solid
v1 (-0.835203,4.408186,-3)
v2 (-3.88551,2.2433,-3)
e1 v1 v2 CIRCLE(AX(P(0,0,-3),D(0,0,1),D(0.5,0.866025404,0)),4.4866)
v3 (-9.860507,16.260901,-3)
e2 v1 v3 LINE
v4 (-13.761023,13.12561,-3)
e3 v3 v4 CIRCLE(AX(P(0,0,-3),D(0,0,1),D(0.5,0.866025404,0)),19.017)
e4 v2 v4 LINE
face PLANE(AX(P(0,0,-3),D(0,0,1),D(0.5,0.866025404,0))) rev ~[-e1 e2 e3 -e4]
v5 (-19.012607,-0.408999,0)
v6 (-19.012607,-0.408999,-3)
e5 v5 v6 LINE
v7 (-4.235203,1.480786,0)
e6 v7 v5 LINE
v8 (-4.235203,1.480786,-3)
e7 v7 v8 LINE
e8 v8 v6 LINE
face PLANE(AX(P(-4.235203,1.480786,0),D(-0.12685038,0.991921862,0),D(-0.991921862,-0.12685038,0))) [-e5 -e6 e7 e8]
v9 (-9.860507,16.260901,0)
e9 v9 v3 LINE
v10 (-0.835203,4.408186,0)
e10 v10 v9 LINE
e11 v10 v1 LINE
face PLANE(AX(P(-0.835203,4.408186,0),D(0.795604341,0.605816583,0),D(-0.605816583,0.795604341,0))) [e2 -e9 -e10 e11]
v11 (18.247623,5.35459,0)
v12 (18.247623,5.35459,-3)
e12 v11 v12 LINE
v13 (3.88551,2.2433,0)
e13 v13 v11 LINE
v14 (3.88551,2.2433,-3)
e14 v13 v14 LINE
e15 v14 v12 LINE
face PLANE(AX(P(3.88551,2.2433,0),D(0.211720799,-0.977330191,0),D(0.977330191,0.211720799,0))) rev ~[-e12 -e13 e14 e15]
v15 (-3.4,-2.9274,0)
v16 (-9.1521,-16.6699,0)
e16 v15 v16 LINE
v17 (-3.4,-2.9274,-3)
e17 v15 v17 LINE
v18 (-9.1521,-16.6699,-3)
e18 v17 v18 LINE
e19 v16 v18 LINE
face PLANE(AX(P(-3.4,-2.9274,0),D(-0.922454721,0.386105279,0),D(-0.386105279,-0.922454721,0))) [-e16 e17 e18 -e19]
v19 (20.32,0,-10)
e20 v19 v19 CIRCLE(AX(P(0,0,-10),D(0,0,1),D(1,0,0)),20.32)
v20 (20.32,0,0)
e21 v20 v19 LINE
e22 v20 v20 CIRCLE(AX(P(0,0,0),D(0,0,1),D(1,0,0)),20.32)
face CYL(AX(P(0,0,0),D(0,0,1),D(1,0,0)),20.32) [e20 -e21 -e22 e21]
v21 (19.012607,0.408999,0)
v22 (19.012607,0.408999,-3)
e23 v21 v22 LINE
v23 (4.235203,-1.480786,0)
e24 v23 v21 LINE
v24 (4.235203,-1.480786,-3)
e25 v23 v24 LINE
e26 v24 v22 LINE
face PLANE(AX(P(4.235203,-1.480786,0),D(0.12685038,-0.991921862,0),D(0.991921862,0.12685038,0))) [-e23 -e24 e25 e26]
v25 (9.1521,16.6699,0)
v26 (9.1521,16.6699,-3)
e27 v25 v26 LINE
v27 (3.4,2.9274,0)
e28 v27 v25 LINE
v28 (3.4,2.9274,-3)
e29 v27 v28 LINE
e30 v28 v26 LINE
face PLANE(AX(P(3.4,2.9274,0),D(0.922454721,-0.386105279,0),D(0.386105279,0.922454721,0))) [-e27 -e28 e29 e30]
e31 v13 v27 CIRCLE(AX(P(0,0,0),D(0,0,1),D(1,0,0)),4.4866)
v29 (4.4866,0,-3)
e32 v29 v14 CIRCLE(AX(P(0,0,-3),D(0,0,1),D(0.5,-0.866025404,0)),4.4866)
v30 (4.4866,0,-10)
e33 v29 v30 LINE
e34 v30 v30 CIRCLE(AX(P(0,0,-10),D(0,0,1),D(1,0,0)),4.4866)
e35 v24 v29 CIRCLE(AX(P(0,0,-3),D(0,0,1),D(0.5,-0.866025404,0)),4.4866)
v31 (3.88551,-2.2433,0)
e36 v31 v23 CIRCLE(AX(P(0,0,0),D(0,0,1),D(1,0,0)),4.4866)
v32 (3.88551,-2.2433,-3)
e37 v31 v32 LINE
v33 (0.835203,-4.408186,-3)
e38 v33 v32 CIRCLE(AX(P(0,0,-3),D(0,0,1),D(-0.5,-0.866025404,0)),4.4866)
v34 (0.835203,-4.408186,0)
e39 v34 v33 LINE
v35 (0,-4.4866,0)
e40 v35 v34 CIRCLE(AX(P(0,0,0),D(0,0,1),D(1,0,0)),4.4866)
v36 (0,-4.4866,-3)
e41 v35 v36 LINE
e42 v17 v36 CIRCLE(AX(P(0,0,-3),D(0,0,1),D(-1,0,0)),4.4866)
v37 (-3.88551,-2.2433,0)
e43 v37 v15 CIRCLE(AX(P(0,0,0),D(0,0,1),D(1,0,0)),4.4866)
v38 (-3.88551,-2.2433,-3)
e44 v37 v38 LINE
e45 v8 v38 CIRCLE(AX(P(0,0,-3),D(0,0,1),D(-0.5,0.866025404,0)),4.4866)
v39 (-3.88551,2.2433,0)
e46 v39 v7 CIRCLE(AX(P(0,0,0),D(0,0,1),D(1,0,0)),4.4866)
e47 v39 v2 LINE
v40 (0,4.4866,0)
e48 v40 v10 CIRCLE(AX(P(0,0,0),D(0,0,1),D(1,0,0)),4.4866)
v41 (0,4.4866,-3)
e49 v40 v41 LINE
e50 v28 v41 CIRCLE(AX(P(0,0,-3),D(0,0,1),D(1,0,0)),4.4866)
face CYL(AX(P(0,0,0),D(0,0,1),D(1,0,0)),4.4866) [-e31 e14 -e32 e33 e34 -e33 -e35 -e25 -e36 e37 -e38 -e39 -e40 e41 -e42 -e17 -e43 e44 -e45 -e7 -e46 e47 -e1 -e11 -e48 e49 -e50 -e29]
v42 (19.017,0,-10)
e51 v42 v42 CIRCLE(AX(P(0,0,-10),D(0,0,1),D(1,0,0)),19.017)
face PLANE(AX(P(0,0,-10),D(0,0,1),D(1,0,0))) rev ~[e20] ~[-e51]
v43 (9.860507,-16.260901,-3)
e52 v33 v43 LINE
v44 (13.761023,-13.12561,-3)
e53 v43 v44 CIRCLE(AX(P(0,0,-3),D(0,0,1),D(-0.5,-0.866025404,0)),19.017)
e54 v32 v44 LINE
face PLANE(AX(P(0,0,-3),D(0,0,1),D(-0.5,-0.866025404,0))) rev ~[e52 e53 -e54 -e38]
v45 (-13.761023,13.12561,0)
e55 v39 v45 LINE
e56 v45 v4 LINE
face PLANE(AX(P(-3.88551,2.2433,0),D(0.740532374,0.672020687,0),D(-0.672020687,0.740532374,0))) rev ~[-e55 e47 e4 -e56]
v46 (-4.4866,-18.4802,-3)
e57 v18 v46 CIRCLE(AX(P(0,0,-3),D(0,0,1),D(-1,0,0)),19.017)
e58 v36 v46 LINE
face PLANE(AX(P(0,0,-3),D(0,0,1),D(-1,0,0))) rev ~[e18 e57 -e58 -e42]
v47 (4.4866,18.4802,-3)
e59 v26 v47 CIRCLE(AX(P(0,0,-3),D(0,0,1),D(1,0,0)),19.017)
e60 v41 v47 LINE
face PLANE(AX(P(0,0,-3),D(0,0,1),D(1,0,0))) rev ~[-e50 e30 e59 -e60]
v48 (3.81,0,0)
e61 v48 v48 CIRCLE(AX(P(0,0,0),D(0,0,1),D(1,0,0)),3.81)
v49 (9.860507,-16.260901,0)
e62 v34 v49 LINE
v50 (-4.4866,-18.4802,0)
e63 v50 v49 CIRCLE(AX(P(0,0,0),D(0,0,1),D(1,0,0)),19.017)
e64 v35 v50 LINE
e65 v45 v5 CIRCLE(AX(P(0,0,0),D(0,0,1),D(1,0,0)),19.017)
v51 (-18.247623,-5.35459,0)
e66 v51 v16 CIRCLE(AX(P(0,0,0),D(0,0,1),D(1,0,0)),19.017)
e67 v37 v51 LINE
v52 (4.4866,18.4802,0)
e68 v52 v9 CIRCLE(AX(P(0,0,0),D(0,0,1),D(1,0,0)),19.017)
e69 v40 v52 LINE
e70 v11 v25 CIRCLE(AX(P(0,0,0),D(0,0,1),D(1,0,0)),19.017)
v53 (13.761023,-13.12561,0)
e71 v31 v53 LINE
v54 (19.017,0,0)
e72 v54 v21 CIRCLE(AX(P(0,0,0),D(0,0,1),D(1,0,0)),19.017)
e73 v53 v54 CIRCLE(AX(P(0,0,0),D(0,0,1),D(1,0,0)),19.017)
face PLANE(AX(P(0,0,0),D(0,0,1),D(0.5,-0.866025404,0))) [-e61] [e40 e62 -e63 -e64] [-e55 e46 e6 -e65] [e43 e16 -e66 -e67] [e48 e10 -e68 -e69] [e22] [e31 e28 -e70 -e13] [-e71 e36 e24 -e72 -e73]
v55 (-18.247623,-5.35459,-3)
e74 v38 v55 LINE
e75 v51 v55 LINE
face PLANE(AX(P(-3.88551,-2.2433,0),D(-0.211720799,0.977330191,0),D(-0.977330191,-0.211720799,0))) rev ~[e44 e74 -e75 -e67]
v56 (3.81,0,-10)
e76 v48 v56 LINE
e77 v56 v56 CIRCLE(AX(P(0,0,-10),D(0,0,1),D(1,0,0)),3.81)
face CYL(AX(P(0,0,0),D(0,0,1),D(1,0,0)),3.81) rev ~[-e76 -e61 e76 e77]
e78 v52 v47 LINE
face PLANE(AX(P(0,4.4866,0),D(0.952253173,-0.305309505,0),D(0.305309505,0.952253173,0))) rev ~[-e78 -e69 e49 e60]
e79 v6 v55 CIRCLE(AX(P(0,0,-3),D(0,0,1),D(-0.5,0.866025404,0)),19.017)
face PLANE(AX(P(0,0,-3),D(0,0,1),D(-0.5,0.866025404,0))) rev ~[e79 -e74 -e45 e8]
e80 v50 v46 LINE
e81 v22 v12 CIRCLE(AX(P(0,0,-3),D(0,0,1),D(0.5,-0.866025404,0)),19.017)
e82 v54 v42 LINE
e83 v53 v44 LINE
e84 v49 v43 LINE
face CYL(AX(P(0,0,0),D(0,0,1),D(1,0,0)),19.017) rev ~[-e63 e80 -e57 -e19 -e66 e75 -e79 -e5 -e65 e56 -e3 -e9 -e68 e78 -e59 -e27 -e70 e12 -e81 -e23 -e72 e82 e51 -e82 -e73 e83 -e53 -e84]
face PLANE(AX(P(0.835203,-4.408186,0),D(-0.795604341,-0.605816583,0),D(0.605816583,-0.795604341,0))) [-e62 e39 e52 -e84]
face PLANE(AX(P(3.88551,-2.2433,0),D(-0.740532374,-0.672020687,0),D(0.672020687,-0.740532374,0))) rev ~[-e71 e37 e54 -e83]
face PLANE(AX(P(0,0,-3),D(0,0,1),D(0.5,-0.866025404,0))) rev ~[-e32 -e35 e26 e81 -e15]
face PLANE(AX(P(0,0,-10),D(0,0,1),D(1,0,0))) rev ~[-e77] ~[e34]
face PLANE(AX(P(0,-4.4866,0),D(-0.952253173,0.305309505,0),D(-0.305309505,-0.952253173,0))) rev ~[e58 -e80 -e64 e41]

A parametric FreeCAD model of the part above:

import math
import FreeCAD as App
import Part
import Sketcher
from FreeCAD import Vector
Q = App.Units.Quantity

doc = App.newDocument("Part")
body = doc.addObject("PartDesign::Body", "Body")
body.AllowCompound = True

# Sketch on XY plane
sketch1 = doc.addObject("Sketcher::SketchObject", "Sketch")
body.addObject(sketch1)
sketch1.AttachmentSupport = (doc.XY_Plane, [""])
sketch1.MapMode = "FlatFace"
sketch1.addGeometry([
    Part.Circle(Vector(0, 0, 0), Vector(0, 0, 1), 4.5),
    Part.Circle(Vector(0, 0, 0), Vector(0, 0, 1), 3.8),
    Part.Circle(Vector(0, 0, 0), Vector(0, 0, 1), 20.3),
    Part.Circle(Vector(0, 0, 0), Vector(0, 0, 1), 19),
], False)
sketch1.addConstraint([
    Sketcher.Constraint("Coincident", 0, 3, -1, 1),
    Sketcher.Constraint("Coincident", 1, 3, -1, 1),
    Sketcher.Constraint("Coincident", 2, 3, -1, 1),
    Sketcher.Constraint("Coincident", 3, 3, -1, 1),
    Sketcher.Constraint("Diameter", 1, Q("0.3 in")),
    Sketcher.Constraint("Diameter", 2, Q("1.6 in")),
    Sketcher.Constraint("Diameter", 3, Q("1.4974 in")),
    Sketcher.Constraint("Diameter", 0, 8.9732),
])
pad1 = doc.addObject("PartDesign::Pad", "Pad")
body.addObject(pad1)
pad1.Profile = sketch1
pad1.Length = Q("0.3937008 in")
pad1.Reversed = True

# Sketch on XY plane
sketch2 = doc.addObject("Sketcher::SketchObject", "Sketch001")
body.addObject(sketch2)
sketch2.AttachmentSupport = (doc.XY_Plane, [""])
sketch2.MapMode = "FlatFace"
sketch2.addGeometry([
    Part.ArcOfCircle(Part.Circle(Vector(0, 0, 0), Vector(0, 0, 1), 4.5), math.radians(41), math.radians(90)),
    Part.LineSegment(Vector(3.4, 2.9, 0), Vector(9.2, 16.7, 0)),
    Part.ArcOfCircle(Part.Circle(Vector(0, 0, 0), Vector(0, 0, 1), 19), math.radians(61.23), math.radians(76.35)),
    Part.LineSegment(Vector(4.5, 18.5, 0), Vector(0, 4.5, 0)),
], False)
sketch2.addConstraint([
    Sketcher.Constraint("Coincident", 0, 1, 1, 1),
    Sketcher.Constraint("Coincident", 1, 2, 2, 1),
    Sketcher.Constraint("Coincident", 2, 2, 3, 1),
    Sketcher.Constraint("Coincident", 3, 2, 0, 2),
    Sketcher.Constraint("Coincident", 0, 3, -1, 1),
    Sketcher.Constraint("Coincident", 2, 3, -1, 1),
    Sketcher.Constraint("PointOnObject", 3, 2, -2),
    Sketcher.Constraint("Radius", 2, Q("0.7487 in")),
    Sketcher.Constraint("Radius", 0, 4.4866),
    Sketcher.Constraint("DistanceY", -1, 1, 1, 2, Q("0.6563 in")),
    Sketcher.Constraint("Distance", 1, 14.8978),
    Sketcher.Constraint("Distance", 3, 14.6953),
])
pad2 = doc.addObject("PartDesign::Pad", "Pad001")
body.addObject(pad2)
pad2.Profile = sketch2
pad2.Length = Q("0.1181102 in")
pad2.Reversed = True
doc.recompute()

polarpattern = doc.addObject("PartDesign::PolarPattern", "PolarPattern")
body.addObject(polarpattern)
polarpattern.Originals = [pad2]
polarpattern.Axis = (doc.Z_Axis, [""])
polarpattern.Angle = 360
polarpattern.Occurrences = 6
body.Tip = polarpattern

doc.recompute()
